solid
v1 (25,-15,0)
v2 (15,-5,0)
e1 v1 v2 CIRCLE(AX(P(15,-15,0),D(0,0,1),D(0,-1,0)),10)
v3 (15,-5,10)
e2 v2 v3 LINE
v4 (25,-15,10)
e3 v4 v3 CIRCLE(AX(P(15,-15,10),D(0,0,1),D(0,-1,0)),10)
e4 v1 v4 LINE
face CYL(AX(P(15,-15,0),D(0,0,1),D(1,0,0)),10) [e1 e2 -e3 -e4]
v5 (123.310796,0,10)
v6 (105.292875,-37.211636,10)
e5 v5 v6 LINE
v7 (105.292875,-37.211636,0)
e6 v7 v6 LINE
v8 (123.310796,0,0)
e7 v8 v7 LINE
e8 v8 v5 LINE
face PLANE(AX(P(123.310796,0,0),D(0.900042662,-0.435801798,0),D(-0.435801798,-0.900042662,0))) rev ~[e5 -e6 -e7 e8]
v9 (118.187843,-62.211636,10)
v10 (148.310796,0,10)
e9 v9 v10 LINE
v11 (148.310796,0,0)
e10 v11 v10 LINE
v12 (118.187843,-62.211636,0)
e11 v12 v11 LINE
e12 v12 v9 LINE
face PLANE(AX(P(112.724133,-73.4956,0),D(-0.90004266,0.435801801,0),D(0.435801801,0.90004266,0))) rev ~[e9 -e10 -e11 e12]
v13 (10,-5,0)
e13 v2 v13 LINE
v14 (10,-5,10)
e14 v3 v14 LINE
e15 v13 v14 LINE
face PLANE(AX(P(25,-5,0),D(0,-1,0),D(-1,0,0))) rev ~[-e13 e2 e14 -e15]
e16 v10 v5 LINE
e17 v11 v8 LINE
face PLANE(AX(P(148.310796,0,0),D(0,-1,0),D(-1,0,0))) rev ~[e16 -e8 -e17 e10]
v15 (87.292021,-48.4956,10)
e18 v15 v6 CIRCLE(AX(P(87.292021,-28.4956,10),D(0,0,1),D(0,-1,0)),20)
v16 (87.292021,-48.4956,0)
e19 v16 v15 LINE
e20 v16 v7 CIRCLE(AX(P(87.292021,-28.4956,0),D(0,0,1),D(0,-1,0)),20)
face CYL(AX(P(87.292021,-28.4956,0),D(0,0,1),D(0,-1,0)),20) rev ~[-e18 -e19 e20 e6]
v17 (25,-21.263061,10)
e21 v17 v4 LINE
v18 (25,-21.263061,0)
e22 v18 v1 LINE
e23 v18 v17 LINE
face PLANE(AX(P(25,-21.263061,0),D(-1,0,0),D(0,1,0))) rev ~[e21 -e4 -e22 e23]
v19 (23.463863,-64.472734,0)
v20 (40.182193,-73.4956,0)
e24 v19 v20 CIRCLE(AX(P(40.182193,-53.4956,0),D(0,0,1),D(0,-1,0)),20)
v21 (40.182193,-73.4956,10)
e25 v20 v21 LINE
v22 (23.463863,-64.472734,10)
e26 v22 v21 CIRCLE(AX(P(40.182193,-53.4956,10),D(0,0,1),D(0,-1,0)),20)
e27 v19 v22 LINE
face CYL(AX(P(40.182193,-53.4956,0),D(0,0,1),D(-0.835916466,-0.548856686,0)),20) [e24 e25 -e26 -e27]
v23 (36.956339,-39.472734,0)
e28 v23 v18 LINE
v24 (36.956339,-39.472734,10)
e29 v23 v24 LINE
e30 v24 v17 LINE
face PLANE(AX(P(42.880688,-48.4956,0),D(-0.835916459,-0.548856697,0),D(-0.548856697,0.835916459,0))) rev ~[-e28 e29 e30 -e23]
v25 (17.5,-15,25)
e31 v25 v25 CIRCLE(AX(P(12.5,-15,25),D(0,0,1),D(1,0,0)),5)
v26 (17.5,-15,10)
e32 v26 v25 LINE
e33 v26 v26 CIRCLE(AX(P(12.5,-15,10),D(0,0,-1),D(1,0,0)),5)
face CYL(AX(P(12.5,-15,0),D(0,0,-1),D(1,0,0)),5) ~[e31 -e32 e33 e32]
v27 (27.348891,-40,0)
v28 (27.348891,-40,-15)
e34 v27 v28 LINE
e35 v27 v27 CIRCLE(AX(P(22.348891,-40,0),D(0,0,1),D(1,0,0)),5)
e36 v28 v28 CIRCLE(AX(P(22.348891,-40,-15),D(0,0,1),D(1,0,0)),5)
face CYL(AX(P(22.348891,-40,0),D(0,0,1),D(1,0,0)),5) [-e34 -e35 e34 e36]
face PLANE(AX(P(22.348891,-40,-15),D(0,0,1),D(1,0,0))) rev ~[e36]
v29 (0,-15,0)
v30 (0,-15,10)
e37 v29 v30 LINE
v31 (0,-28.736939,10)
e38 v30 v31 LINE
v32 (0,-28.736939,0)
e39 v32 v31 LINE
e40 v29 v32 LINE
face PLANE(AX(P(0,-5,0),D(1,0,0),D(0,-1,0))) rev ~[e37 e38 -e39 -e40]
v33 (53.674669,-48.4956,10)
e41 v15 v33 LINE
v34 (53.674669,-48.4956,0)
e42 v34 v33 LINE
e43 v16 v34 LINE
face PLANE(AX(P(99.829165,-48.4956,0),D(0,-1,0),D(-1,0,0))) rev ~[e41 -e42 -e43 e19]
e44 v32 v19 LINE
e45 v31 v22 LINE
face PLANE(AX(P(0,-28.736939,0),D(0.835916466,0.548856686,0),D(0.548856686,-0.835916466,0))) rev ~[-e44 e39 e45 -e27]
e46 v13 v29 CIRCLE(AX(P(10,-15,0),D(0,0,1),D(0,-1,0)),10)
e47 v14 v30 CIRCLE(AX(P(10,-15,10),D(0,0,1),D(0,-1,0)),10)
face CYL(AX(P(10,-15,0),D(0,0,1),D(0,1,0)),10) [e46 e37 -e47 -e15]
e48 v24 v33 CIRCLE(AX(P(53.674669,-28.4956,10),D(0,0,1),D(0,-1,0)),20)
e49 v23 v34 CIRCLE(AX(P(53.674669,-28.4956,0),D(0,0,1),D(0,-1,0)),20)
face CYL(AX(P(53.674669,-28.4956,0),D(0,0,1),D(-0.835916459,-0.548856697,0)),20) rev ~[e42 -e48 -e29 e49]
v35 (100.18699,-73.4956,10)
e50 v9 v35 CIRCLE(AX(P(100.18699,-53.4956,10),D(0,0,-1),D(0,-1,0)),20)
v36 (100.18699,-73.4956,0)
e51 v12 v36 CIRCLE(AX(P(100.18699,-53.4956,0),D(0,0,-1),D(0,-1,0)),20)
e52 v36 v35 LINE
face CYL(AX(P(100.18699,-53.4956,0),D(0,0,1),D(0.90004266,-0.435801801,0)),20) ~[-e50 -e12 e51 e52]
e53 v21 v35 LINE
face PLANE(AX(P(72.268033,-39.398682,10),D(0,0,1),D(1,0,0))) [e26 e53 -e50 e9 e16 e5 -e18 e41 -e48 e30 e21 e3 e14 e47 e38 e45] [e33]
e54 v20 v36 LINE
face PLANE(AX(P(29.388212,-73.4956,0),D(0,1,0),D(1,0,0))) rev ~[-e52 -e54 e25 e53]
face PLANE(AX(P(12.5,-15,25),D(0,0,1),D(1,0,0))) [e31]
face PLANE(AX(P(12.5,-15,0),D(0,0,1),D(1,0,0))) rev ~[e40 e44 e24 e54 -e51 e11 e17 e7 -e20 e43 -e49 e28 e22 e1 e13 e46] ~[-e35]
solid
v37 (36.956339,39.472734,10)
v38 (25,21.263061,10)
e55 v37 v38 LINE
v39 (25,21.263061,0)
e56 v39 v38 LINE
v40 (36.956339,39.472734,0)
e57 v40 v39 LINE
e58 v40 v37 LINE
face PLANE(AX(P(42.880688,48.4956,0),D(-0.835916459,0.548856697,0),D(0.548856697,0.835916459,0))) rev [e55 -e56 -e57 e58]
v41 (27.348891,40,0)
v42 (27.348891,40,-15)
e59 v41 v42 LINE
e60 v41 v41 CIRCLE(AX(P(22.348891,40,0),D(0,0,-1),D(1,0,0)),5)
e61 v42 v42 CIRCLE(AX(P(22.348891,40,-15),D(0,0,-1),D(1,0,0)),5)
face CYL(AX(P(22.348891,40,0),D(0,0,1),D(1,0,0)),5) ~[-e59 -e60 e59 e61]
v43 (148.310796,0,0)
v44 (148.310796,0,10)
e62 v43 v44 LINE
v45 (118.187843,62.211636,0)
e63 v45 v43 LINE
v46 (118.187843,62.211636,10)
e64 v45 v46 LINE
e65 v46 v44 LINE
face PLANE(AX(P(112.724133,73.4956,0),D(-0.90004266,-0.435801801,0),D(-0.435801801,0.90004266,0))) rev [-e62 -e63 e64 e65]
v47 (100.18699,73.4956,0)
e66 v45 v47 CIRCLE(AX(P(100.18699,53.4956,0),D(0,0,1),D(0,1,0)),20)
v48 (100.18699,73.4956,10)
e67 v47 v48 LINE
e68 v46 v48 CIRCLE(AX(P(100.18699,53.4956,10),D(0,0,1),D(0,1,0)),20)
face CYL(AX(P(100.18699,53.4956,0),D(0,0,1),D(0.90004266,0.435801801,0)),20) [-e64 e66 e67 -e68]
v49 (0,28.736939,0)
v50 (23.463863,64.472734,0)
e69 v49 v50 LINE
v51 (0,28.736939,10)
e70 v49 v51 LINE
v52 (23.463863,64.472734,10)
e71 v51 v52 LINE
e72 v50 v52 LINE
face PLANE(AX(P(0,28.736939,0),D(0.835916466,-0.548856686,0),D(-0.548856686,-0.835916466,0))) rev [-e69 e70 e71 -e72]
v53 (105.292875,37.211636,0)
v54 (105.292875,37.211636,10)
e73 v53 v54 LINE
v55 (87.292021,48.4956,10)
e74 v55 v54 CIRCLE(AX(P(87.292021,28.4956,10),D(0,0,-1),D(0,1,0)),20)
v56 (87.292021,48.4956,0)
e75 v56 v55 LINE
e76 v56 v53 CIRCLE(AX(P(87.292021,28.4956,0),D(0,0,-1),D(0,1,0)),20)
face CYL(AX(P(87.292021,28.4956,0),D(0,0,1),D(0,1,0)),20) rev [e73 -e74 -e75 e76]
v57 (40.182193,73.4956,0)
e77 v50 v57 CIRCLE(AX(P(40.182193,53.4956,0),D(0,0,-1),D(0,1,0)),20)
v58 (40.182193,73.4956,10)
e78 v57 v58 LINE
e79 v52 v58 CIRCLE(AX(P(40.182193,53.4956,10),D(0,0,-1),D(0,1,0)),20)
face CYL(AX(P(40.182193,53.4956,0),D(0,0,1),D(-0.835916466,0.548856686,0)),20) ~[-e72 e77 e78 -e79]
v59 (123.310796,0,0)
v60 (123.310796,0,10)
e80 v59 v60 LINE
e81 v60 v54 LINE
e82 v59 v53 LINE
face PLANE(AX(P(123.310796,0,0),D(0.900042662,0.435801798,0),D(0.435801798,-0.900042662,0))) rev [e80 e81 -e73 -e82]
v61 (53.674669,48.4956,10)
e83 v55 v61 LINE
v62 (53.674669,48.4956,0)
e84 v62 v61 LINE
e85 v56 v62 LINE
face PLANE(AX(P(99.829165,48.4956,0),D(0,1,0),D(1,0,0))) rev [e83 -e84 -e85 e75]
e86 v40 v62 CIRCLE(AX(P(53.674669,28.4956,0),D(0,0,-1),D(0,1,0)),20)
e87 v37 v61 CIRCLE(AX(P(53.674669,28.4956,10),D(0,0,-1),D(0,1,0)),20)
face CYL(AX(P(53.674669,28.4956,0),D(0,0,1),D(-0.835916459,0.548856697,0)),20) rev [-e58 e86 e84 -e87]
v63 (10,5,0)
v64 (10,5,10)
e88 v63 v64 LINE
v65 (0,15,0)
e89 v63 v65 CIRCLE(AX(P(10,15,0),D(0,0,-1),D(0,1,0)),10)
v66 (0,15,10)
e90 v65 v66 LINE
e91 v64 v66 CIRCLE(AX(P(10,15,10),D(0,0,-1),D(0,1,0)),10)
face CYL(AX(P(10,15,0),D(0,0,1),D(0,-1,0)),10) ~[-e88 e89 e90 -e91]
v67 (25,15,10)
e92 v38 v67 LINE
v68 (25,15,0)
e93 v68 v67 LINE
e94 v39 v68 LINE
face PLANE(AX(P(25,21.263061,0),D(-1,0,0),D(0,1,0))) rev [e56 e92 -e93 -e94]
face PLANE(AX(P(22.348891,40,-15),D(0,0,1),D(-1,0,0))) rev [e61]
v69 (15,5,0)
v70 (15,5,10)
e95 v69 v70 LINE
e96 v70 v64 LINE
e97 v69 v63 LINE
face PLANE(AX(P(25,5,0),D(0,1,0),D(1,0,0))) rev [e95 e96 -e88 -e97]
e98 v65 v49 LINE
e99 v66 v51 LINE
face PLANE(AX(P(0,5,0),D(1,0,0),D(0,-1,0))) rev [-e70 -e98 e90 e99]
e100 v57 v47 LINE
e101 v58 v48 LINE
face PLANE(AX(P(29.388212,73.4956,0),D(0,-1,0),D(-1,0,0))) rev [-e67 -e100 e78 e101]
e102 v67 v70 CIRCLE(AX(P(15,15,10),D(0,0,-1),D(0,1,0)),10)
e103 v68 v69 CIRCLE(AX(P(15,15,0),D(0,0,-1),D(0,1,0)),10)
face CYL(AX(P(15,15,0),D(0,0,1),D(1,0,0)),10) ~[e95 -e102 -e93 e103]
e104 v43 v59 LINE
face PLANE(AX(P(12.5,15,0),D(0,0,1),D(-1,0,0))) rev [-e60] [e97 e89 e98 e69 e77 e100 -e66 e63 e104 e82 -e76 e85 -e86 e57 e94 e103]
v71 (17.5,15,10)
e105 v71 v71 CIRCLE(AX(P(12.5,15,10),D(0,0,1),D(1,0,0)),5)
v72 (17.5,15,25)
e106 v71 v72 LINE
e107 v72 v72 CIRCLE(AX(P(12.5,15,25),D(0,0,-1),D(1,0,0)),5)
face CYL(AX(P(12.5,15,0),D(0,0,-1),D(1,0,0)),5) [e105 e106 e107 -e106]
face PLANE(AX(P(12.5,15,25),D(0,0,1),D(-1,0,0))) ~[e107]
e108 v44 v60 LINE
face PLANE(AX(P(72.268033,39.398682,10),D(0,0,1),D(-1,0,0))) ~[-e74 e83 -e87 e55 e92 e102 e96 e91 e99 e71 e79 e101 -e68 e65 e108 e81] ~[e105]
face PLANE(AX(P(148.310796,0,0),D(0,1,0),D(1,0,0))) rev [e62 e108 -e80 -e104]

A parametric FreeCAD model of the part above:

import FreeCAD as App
import Part
import Sketcher
Q = App.Units.Quantity


def edges_at(feature, points):
    """Names of the edges that pass closest to the given points."""
    edges = feature.Shape.Edges
    near = lambda p: min(range(len(edges)), key=lambda i: edges[i].distToShape(Part.Vertex(*p))[0])
    return sorted({f"Edge{near(p) + 1}" for p in points})


def add_polygon(sketch, points):
    """Adds a closed chain of lines whose ends are joined by coincident constraints."""
    first, n = sketch.GeometryCount, len(points)
    for a, b in zip(points, points[1:] + points[:1]):
        sketch.addGeometry(Part.LineSegment(App.Vector(*a, 0), App.Vector(*b, 0)), False)
    for i in range(n):
        sketch.addConstraint(Sketcher.Constraint("Coincident", first + i, 2, first + (i + 1) % n, 1))

doc = App.newDocument("Part")
body = doc.addObject("PartDesign::Body", "Body")

sketch1 = doc.addObject("Sketcher::SketchObject", "Sketch")
body.addObject(sketch1)
sketch1.AttachmentSupport = (doc.XY_Plane, [""])
sketch1.MapMode = "FlatFace"
add_polygon(sketch1, [(99.829165, -48.4956), (42.880688, -48.4956), (25, -21.263061), (25, -5), (0, -5), (0, -28.736939), (29.388212, -73.4956), (112.724133, -73.4956), (148.310796, 0), (123.310796, 0)])
sketch1.addConstraint([
    Sketcher.Constraint("Horizontal", 0),
    Sketcher.Constraint("Vertical", 2),
    Sketcher.Constraint("Horizontal", 3),
    Sketcher.Constraint("Vertical", 4),
    Sketcher.Constraint("Horizontal", 6),
    Sketcher.Constraint("Horizontal", 8),
    Sketcher.Constraint("PointOnObject", 3, 2, -2),
    Sketcher.Constraint("PointOnObject", 7, 2, -1),
    Sketcher.Constraint("Parallel", 1, 5),
    Sketcher.Constraint("Parallel", 7, 9),
    Sketcher.Constraint("Equal", 3, 8),
    Sketcher.Constraint("DistanceX", 3, 2, 3, 1, Q("25 mm")),
    Sketcher.Constraint("DistanceY", 2, 2, -1, 1, Q("5 mm")),
    Sketcher.Constraint("DistanceY", 5, 2, 0, 2, Q("25 mm")),
    Sketcher.Constraint("DistanceX", 6, 1, 6, 2, Q("83.335921 mm")),
    Sketcher.Constraint("DistanceY", 2, 1, 2, 2, Q("16.263061 mm")),
    Sketcher.Constraint("DistanceY", 4, 2, 4, 1, Q("23.736939 mm")),
    Sketcher.Constraint("DistanceY", 0, 2, -1, 1, Q("48.4956 mm")),
    Sketcher.Constraint("Distance", 5, Q("53.544418 mm")),
    Sketcher.Constraint("DistanceX", 0, 2, 0, 1, Q("56.948477 mm")),
])
pad1 = doc.addObject("PartDesign::Pad", "Pad")
body.addObject(pad1)
pad1.Profile = sketch1
pad1.Length = 10

sketch2 = doc.addObject("Sketcher::SketchObject", "Sketch001")
body.addObject(sketch2)
sketch2.AttachmentSupport = (doc.XY_Plane, [""])
sketch2.MapMode = "FlatFace"
sketch2.addGeometry(Part.Circle(App.Vector(22.348891, -40, 0), App.Vector(0, 0, 1), 5), False)
sketch2.addConstraint([
    Sketcher.Constraint("Diameter", 0, Q("10 mm")),
    Sketcher.Constraint("DistanceY", 0, 3, -1, 1, Q("40 mm")),
    Sketcher.Constraint("DistanceX", -1, 1, 0, 3, Q("22.348891 mm")),
])
pad2 = doc.addObject("PartDesign::Pad", "Pad001")
body.addObject(pad2)
pad2.Profile = sketch2
pad2.Length = 15
pad2.Reversed = True

sketch3 = doc.addObject("Sketcher::SketchObject", "Sketch002")
body.addObject(sketch3)
sketch3.AttachmentSupport = (doc.XY_Plane, [""])
sketch3.MapMode = "FlatFace"
sketch3.addGeometry(Part.Circle(App.Vector(12.5, -15, 0), App.Vector(0, 0, 1), 5), False)
sketch3.addConstraint([
    Sketcher.Constraint("Diameter", 0, Q("10 mm")),
    Sketcher.Constraint("DistanceY", 0, 3, -1, 1, Q("15 mm")),
    Sketcher.Constraint("DistanceX", -1, 1, 0, 3, Q("12.5 mm")),
])
pad3 = doc.addObject("PartDesign::Pad", "Pad002")
body.addObject(pad3)
pad3.Profile = sketch3
pad3.Length = 25
doc.recompute()

fillet = doc.addObject("PartDesign::Fillet", "Fillet")
body.addObject(fillet)
fillet.Base = (pad3, edges_at(pad3, [(0, -5, 5), (25, -5, 5)]))
fillet.Radius = 10
doc.recompute()

fillet2 = doc.addObject("PartDesign::Fillet", "Fillet001")
body.addObject(fillet2)
fillet2.Base = (fillet, edges_at(fillet, [
    (42.881, -48.496, 5),
    (99.829, -48.496, 5),
    (29.388, -73.496, 5),
    (112.724, -73.496, 5),
]))
fillet2.Radius = 20
body2 = doc.addObject("PartDesign::Body", "Body001")
doc.recompute()

body2.BaseFeature = body
doc.recompute()
body3 = doc.addObject("PartDesign::Body", "Body002")
doc.recompute()

mirroring = doc.addObject("Part::Mirroring", "Mirroring")
mirroring.Source = body
mirroring.Base = App.Vector(0, 0, 0)
mirroring.Normal = App.Vector(0, -1, 0)
body3.BaseFeature = mirroring
doc.recompute()
body4 = doc.addObject("PartDesign::Body", "Body003")
doc.recompute()

body4.BaseFeature = body3
doc.recompute()
body.Visibility = False
body3.Visibility = False
mirroring.Visibility = False

doc.recompute()
